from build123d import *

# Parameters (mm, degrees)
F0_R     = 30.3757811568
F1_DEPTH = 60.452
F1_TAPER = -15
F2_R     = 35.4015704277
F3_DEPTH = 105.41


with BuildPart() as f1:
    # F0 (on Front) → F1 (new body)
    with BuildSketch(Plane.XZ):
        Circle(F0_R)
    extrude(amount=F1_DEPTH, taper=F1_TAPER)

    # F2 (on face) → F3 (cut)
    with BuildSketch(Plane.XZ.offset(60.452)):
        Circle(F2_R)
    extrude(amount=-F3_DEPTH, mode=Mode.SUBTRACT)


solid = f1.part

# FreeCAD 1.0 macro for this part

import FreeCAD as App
import Part
import Sketcher

V = App.Vector
Q = App.Units.Quantity

doc = App.newDocument("Part")
body = doc.addObject("PartDesign::Body", "Body")

# Sketch on XZ plane
sketch1 = body.newObject("Sketcher::SketchObject", "Sketch")
sketch1.AttachmentSupport = (doc.getObject("XZ_Plane"), [""])
sketch1.MapMode = "FlatFace"
sketch1.addGeometry(Part.Circle(V(0, 0, 0), V(0, 0, 1), 30), False)
sketch1.addConstraint(Sketcher.Constraint("Coincident", 0, 3, -1, 1))
sketch1.addConstraint(Sketcher.Constraint("Diameter", 0, Q("60.751562 mm")))
pad1 = body.newObject("PartDesign::Pad", "Pad")
pad1.Profile = sketch1
pad1.Length = Q("2.38 in")
pad1.TaperAngle = 15

# Sketch on XZ plane
sketch2 = body.newObject("Sketcher::SketchObject", "Sketch001")
sketch2.AttachmentSupport = (doc.getObject("XZ_Plane"), [""])
sketch2.MapMode = "FlatFace"
sketch2.AttachmentOffset = App.Placement(V(0, 0, 2.38 * 25.4), App.Rotation())
sketch2.addGeometry(Part.Circle(V(0, 0, 0), V(0, 0, 1), 35), False)
sketch2.addConstraint(Sketcher.Constraint("Coincident", 0, 3, -1, 1))
sketch2.addConstraint(Sketcher.Constraint("Diameter", 0, Q("70.803141 mm")))
pocket1 = body.newObject("PartDesign::Pocket", "Pocket")
pocket1.Profile = sketch2
pocket1.Length = Q("4.15 in")

doc.recompute()
